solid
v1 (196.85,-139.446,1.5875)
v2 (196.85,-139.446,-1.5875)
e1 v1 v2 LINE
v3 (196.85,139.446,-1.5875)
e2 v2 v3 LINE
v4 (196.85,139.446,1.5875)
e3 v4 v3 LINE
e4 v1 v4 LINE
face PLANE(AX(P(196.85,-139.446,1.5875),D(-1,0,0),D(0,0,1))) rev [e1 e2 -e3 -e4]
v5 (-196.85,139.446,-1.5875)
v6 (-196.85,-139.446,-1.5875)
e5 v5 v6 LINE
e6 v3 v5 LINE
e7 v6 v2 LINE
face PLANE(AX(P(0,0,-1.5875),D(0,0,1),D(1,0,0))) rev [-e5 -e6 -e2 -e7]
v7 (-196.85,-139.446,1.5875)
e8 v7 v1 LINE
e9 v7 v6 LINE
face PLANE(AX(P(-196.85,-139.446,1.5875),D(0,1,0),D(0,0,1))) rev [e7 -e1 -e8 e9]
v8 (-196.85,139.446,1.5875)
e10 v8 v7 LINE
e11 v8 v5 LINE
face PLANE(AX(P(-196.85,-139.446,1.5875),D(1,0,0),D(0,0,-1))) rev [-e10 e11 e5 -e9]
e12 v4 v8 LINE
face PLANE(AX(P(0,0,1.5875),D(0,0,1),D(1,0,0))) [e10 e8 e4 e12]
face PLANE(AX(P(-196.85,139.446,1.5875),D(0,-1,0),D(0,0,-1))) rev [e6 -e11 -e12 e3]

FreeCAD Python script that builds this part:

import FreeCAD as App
import Part
import Sketcher
Q = App.Units.Quantity


def add_polygon(sketch, points):
    """Adds a closed chain of lines whose ends are joined by coincident constraints."""
    first, n = sketch.GeometryCount, len(points)
    for a, b in zip(points, points[1:] + points[:1]):
        sketch.addGeometry(Part.LineSegment(App.Vector(*a, 0), App.Vector(*b, 0)), False)
    for i in range(n):
        sketch.addConstraint(Sketcher.Constraint("Coincident", first + i, 2, first + (i + 1) % n, 1))

doc = App.newDocument("Part")
body = doc.addObject("PartDesign::Body", "Body")

# Sketch on XY plane
sketch1 = body.newObject("Sketcher::SketchObject", "Sketch")
sketch1.AttachmentSupport = (doc.getObject("XY_Plane"), [""])
sketch1.MapMode = "FlatFace"
add_polygon(sketch1, [(-197, 139), (-197, -139), (197, -139), (197, 139)])  # lines 0-3
sketch1.addConstraint(Sketcher.Constraint("Vertical", 0))
sketch1.addConstraint(Sketcher.Constraint("Horizontal", 1))
sketch1.addConstraint(Sketcher.Constraint("Vertical", 2))
sketch1.addConstraint(Sketcher.Constraint("Horizontal", 3))
sketch1.addConstraint(Sketcher.Constraint("Symmetric", 0, 2, 2, 2, -1, 1))
sketch1.addConstraint(Sketcher.Constraint("DistanceX", 1, 1, 1, 2, Q("15.5 in")))
sketch1.addConstraint(Sketcher.Constraint("DistanceY", 0, 2, 0, 1, Q("10.98 in")))
pad1 = body.newObject("PartDesign::Pad", "Pad")
pad1.Profile = sketch1
pad1.Length = Q("0.125 in")
pad1.Midplane = True

doc.recompute()
